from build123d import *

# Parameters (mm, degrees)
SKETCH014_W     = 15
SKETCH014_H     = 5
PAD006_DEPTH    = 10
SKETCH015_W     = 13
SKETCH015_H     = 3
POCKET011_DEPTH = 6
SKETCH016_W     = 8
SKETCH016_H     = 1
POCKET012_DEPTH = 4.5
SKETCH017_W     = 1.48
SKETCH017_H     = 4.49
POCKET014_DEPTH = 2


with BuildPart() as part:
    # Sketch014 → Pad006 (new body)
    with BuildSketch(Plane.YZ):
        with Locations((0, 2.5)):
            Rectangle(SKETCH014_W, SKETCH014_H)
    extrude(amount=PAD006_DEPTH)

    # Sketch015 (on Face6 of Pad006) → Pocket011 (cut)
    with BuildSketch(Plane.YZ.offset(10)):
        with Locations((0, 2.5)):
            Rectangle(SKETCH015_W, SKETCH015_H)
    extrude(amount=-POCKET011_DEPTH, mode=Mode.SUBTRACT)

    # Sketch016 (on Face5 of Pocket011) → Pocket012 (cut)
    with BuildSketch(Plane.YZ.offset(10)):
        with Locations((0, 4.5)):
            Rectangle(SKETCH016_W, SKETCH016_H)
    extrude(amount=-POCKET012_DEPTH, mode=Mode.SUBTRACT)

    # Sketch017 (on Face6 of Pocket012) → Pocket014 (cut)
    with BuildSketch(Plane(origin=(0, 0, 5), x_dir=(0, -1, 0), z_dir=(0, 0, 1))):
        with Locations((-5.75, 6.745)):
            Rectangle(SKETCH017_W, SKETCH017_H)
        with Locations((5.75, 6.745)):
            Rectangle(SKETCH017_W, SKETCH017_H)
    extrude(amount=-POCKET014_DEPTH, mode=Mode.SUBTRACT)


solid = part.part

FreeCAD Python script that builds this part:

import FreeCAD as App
import Part
import Sketcher

V = App.Vector
Q = App.Units.Quantity


def add_polygon(sketch, points):
    """Adds a closed chain of lines whose ends are joined by coincident constraints."""
    first, n = sketch.GeometryCount, len(points)
    for a, b in zip(points, points[1:] + points[:1]):
        sketch.addGeometry(Part.LineSegment(App.Vector(*a, 0), App.Vector(*b, 0)), False)
    for i in range(n):
        sketch.addConstraint(Sketcher.Constraint("Coincident", first + i, 2, first + (i + 1) % n, 1))

doc = App.newDocument("Part")
params = doc.addObject("Spreadsheet::Sheet", "Params")
for row, (alias, value) in enumerate([
    ("sketch1_width", "15 mm"),
    ("sketch1_height", "5 mm"),
    ("pad1_length", "10 mm"),
    ("sketch2_width", "13 mm"),
    ("sketch2_height", "3 mm"),
    ("pocket1_length", "6 mm"),
    ("sketch3_width", "8 mm"),
    ("sketch3_height", "1 mm"),
    ("pocket2_length", "4.5 mm"),
    ("sketch4_width", "4.49 mm"),
    ("sketch4_height", "1.48 mm"),
    ("pocket3_length", "2 mm"),
], start=1):
    params.set(f"A{row}", alias)
    params.set(f"B{row}", "=" + value)
    params.setAlias(f"B{row}", alias)

body = doc.addObject("PartDesign::Body", "Body")

sketch1 = body.newObject("Sketcher::SketchObject", "Sketch")
sketch1.AttachmentSupport = (doc.getObject("YZ_Plane"), [""])
sketch1.MapMode = "FlatFace"
add_polygon(sketch1, [(-8, 5), (-8, 0), (8, 0), (8, 5)])
sketch1.addConstraint(Sketcher.Constraint("Vertical", 0))
sketch1.addConstraint(Sketcher.Constraint("Horizontal", 1))
sketch1.addConstraint(Sketcher.Constraint("Vertical", 2))
sketch1.addConstraint(Sketcher.Constraint("Horizontal", 3))
sketch1.addConstraint(Sketcher.Constraint("Symmetric", 0, 2, 1, 2, -1, 1))
sketch1.addConstraint(Sketcher.Constraint("DistanceX", 1, 1, 1, 2, Q("15 mm")))
sketch1.addConstraint(Sketcher.Constraint("DistanceY", 0, 2, 0, 1, Q("5 mm")))
sketch1.setExpression("Constraints[9]", "Params.sketch1_width")
sketch1.setExpression("Constraints[10]", "Params.sketch1_height")
pad1 = body.newObject("PartDesign::Pad", "Pad")
pad1.Profile = sketch1
pad1.setExpression("Length", "Params.pad1_length")

sketch2 = body.newObject("Sketcher::SketchObject", "Sketch001")
sketch2.AttachmentSupport = (doc.getObject("YZ_Plane"), [""])
sketch2.MapMode = "FlatFace"
sketch2.AttachmentOffset = App.Placement(V(0, 0, 10), App.Rotation())
add_polygon(sketch2, [(-6.5, 4), (-6.5, 1), (6.5, 1), (6.5, 4)])
sketch2.addConstraint(Sketcher.Constraint("Vertical", 0))
sketch2.addConstraint(Sketcher.Constraint("Horizontal", 1))
sketch2.addConstraint(Sketcher.Constraint("Vertical", 2))
sketch2.addConstraint(Sketcher.Constraint("Horizontal", 3))
sketch2.addConstraint(Sketcher.Constraint("DistanceX", 1, 1, 1, 2, Q("13 mm")))
sketch2.addConstraint(Sketcher.Constraint("DistanceY", 0, 2, 0, 1, Q("3 mm")))
sketch2.addConstraint(Sketcher.Constraint("DistanceY", -1, 1, 0, 2, Q("1 mm")))
sketch2.addConstraint(Sketcher.Constraint("DistanceX", 0, 2, -1, 1, Q("6.5 mm")))
sketch2.setExpression("Constraints[8]", "Params.sketch2_width")
sketch2.setExpression("Constraints[9]", "Params.sketch2_height")
pocket1 = body.newObject("PartDesign::Pocket", "Pocket")
pocket1.Profile = sketch2
pocket1.setExpression("Length", "Params.pocket1_length")

sketch3 = body.newObject("Sketcher::SketchObject", "Sketch002")
sketch3.AttachmentSupport = (doc.getObject("YZ_Plane"), [""])
sketch3.MapMode = "FlatFace"
sketch3.AttachmentOffset = App.Placement(V(0, 0, 10), App.Rotation())
add_polygon(sketch3, [(-4, 5), (-4, 4), (4, 4), (4, 5)])
sketch3.addConstraint(Sketcher.Constraint("Vertical", 0))
sketch3.addConstraint(Sketcher.Constraint("Horizontal", 1))
sketch3.addConstraint(Sketcher.Constraint("Vertical", 2))
sketch3.addConstraint(Sketcher.Constraint("Horizontal", 3))
sketch3.addConstraint(Sketcher.Constraint("DistanceX", 1, 1, 1, 2, Q("8 mm")))
sketch3.addConstraint(Sketcher.Constraint("DistanceY", 0, 2, 0, 1, Q("1 mm")))
sketch3.addConstraint(Sketcher.Constraint("DistanceX", 0, 2, -1, 1, Q("4 mm")))
sketch3.addConstraint(Sketcher.Constraint("DistanceY", -1, 1, 0, 2, Q("4 mm")))
sketch3.setExpression("Constraints[8]", "Params.sketch3_width")
sketch3.setExpression("Constraints[9]", "Params.sketch3_height")
pocket2 = body.newObject("PartDesign::Pocket", "Pocket001")
pocket2.Profile = sketch3
pocket2.setExpression("Length", "Params.pocket2_length")

sketch4 = body.newObject("Sketcher::SketchObject", "Sketch003")
sketch4.AttachmentSupport = (doc.getObject("XY_Plane"), [""])
sketch4.MapMode = "FlatFace"
sketch4.AttachmentOffset = App.Placement(V(0, 0, 5), App.Rotation())
add_polygon(sketch4, [(9, 6.5), (4.5, 6.5), (4.5, 5), (9, 5)])
add_polygon(sketch4, [(9, -5), (4.5, -5), (4.5, -6.5), (9, -6.5)])
sketch4.addConstraint(Sketcher.Constraint("Horizontal", 0))
sketch4.addConstraint(Sketcher.Constraint("Vertical", 1))
sketch4.addConstraint(Sketcher.Constraint("Horizontal", 2))
sketch4.addConstraint(Sketcher.Constraint("Vertical", 3))
sketch4.addConstraint(Sketcher.Constraint("Horizontal", 4))
sketch4.addConstraint(Sketcher.Constraint("Vertical", 5))
sketch4.addConstraint(Sketcher.Constraint("Horizontal", 6))
sketch4.addConstraint(Sketcher.Constraint("Vertical", 7))
sketch4.addConstraint(Sketcher.Constraint("Symmetric", 1, 2, 4, 2, -1))
sketch4.addConstraint(Sketcher.Constraint("Symmetric", 3, 2, 6, 2, -1))
sketch4.addConstraint(Sketcher.Constraint("DistanceX", 0, 2, 0, 1, Q("4.49 mm")))
sketch4.addConstraint(Sketcher.Constraint("DistanceY", 1, 2, 1, 1, Q("1.48 mm")))
sketch4.addConstraint(Sketcher.Constraint("DistanceX", -1, 1, 0, 2, Q("4.5 mm")))
sketch4.addConstraint(Sketcher.Constraint("DistanceY", 4, 2, 0, 2, Q("11.5 mm")))
sketch4.setExpression("Constraints[18]", "Params.sketch4_width")
sketch4.setExpression("Constraints[19]", "Params.sketch4_height")
pocket3 = body.newObject("PartDesign::Pocket", "Pocket002")
pocket3.Profile = sketch4
pocket3.setExpression("Length", "Params.pocket3_length")

doc.recompute()
